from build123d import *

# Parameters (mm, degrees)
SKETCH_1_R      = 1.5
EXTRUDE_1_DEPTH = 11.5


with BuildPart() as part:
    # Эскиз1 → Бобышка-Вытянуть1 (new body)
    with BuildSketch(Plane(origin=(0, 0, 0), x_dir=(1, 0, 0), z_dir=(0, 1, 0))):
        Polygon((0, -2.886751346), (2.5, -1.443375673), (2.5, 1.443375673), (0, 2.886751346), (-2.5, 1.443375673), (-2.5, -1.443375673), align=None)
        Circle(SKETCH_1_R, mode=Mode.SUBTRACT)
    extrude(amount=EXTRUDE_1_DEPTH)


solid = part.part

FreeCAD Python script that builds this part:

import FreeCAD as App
import Part
import Sketcher

V = App.Vector
Q = App.Units.Quantity

doc = App.newDocument("Part")
body = doc.addObject("PartDesign::Body", "Body")

# Sketch on XZ plane
sketch1 = body.newObject("Sketcher::SketchObject", "Sketch")
sketch1.AttachmentSupport = (doc.getObject("XZ_Plane"), [""])
sketch1.MapMode = "FlatFace"
sketch1.addGeometry(Part.LineSegment(V(0, 2.9, 0), V(2.5, 1.4, 0)), False)
sketch1.addGeometry(Part.LineSegment(V(2.5, 1.4, 0), V(2.5, -1.4, 0)), False)
sketch1.addGeometry(Part.LineSegment(V(2.5, -1.4, 0), V(0, -2.9, 0)), False)
sketch1.addGeometry(Part.LineSegment(V(0, -2.9, 0), V(-2.5, -1.4, 0)), False)
sketch1.addGeometry(Part.LineSegment(V(-2.5, -1.4, 0), V(-2.5, 1.4, 0)), False)
sketch1.addGeometry(Part.LineSegment(V(-2.5, 1.4, 0), V(0, 2.9, 0)), False)
sketch1.addGeometry(Part.Circle(V(0, 0, 0), V(0, 0, 1), 1.5), False)
sketch1.addConstraint(Sketcher.Constraint("Coincident", 0, 2, 1, 1))
sketch1.addConstraint(Sketcher.Constraint("Coincident", 1, 2, 2, 1))
sketch1.addConstraint(Sketcher.Constraint("Coincident", 2, 2, 3, 1))
sketch1.addConstraint(Sketcher.Constraint("Coincident", 3, 2, 4, 1))
sketch1.addConstraint(Sketcher.Constraint("Coincident", 4, 2, 5, 1))
sketch1.addConstraint(Sketcher.Constraint("Coincident", 5, 2, 0, 1))
sketch1.addConstraint(Sketcher.Constraint("Vertical", 1))
sketch1.addConstraint(Sketcher.Constraint("Vertical", 4))
sketch1.addConstraint(Sketcher.Constraint("Coincident", 6, 3, -1, 1))
sketch1.addConstraint(Sketcher.Constraint("Symmetric", 0, 2, 3, 2, -1, 1))
sketch1.addConstraint(Sketcher.Constraint("Symmetric", 2, 2, 5, 2, -1, 1))
sketch1.addConstraint(Sketcher.Constraint("PointOnObject", 2, 2, -2))
sketch1.addConstraint(Sketcher.Constraint("Parallel", 2, 5))
sketch1.addConstraint(Sketcher.Constraint("Horizontal", 1, 2, 3, 2))
sketch1.addConstraint(Sketcher.Constraint("Diameter", 6, 3.0))
sketch1.addConstraint(Sketcher.Constraint("Angle", 0, Q("-30 deg")))
sketch1.addConstraint(Sketcher.Constraint("DistanceX", 3, 2, 1, 2, 5.0))
sketch1.addConstraint(Sketcher.Constraint("DistanceY", 1, 2, 1, 1, 2.886751))
pad1 = body.newObject("PartDesign::Pad", "Pad")
pad1.Profile = sketch1
pad1.Length = 11.5
pad1.Reversed = True

doc.recompute()
